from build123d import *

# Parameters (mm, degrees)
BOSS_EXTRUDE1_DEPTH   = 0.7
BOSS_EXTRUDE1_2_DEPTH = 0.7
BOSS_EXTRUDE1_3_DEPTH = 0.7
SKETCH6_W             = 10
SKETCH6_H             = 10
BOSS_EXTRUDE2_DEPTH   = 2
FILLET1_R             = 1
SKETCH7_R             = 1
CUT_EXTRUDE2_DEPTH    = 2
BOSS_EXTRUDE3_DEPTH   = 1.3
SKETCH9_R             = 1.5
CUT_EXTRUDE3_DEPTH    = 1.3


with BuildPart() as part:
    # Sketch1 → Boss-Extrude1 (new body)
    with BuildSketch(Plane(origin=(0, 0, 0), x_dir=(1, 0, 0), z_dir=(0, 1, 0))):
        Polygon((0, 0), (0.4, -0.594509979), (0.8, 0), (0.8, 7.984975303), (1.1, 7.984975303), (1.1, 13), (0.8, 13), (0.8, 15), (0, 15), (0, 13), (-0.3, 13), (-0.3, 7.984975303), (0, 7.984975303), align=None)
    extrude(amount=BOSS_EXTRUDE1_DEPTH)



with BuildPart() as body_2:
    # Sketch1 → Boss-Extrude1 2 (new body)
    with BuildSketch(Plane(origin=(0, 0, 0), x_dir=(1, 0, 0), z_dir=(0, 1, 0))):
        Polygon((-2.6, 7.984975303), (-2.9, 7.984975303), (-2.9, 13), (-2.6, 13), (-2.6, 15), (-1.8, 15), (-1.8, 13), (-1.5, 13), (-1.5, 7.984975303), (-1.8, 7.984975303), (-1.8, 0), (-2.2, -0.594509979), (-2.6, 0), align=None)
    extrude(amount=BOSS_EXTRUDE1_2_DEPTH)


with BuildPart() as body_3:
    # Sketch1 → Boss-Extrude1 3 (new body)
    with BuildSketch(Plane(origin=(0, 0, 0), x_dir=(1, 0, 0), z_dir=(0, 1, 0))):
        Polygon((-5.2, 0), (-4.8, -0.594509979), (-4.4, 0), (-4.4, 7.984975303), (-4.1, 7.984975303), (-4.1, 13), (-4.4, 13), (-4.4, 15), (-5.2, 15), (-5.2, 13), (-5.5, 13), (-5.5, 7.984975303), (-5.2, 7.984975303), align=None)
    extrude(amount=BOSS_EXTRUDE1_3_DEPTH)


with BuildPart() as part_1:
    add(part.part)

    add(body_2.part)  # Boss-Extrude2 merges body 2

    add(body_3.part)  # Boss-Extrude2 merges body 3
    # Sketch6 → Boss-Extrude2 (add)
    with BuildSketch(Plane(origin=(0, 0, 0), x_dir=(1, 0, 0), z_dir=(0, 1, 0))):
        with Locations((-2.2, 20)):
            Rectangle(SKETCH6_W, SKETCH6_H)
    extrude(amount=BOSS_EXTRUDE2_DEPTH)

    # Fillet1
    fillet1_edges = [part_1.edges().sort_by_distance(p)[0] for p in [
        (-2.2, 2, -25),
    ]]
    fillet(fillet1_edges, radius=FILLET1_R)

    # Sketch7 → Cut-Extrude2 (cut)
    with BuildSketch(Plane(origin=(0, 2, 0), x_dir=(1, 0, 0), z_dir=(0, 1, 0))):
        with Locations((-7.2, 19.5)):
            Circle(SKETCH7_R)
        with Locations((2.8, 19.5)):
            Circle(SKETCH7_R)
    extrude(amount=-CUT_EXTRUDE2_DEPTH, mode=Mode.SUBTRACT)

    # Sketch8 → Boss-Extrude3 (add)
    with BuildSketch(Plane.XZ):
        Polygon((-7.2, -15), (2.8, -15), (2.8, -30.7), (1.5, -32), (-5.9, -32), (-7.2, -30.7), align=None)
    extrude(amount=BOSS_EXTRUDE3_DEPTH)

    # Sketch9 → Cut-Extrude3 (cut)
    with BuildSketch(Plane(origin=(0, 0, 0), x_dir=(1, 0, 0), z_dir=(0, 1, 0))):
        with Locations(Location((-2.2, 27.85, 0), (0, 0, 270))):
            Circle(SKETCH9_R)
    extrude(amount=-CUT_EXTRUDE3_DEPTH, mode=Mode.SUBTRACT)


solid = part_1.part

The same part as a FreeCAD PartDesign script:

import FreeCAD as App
import Part
import Sketcher
from FreeCAD import Vector


def edges_at(feature, points):
    """Names of the edges that pass closest to the given points."""
    edges = feature.Shape.Edges
    near = lambda p: min(range(len(edges)), key=lambda i: edges[i].distToShape(Part.Vertex(*p))[0])
    return sorted({f"Edge{near(p) + 1}" for p in points})

doc = App.newDocument("Part")
body = doc.addObject("PartDesign::Body", "Body")

# Sketch on XZ plane
sketch1 = doc.addObject("Sketcher::SketchObject", "Sketch")
body.addObject(sketch1)
sketch1.AttachmentSupport = (doc.XZ_Plane, [""])
sketch1.MapMode = "FlatFace"
sketch1.addGeometry(Part.LineSegment(Vector(0, 0, 0), Vector(0.4, 0.59, 0)), False)
sketch1.addGeometry(Part.LineSegment(Vector(0.4, 0.59, 0), Vector(0.8, 0, 0)), False)
sketch1.addGeometry(Part.LineSegment(Vector(0.8, 0, 0), Vector(0.8, -7.98, 0)), False)
sketch1.addGeometry(Part.LineSegment(Vector(0.8, -7.98, 0), Vector(1.1, -7.98, 0)), False)
sketch1.addGeometry(Part.LineSegment(Vector(1.1, -7.98, 0), Vector(1.1, -13, 0)), False)
sketch1.addGeometry(Part.LineSegment(Vector(1.1, -13, 0), Vector(0.8, -13, 0)), False)
sketch1.addGeometry(Part.LineSegment(Vector(0.8, -13, 0), Vector(0.8, -15, 0)), False)
sketch1.addGeometry(Part.LineSegment(Vector(0.8, -15, 0), Vector(0, -15, 0)), False)
sketch1.addGeometry(Part.LineSegment(Vector(0, -15, 0), Vector(0, -13, 0)), False)
sketch1.addGeometry(Part.LineSegment(Vector(0, -13, 0), Vector(-0.3, -13, 0)), False)
sketch1.addGeometry(Part.LineSegment(Vector(-0.3, -13, 0), Vector(-0.3, -7.98, 0)), False)
sketch1.addGeometry(Part.LineSegment(Vector(-0.3, -7.98, 0), Vector(0, -7.98, 0)), False)
sketch1.addGeometry(Part.LineSegment(Vector(0, -7.98, 0), Vector(0, 0, 0)), False)
sketch1.addConstraint(Sketcher.Constraint("Coincident", 0, 2, 1, 1))
sketch1.addConstraint(Sketcher.Constraint("Coincident", 1, 2, 2, 1))
sketch1.addConstraint(Sketcher.Constraint("Coincident", 2, 2, 3, 1))
sketch1.addConstraint(Sketcher.Constraint("Coincident", 3, 2, 4, 1))
sketch1.addConstraint(Sketcher.Constraint("Coincident", 4, 2, 5, 1))
sketch1.addConstraint(Sketcher.Constraint("Coincident", 5, 2, 6, 1))
sketch1.addConstraint(Sketcher.Constraint("Coincident", 6, 2, 7, 1))
sketch1.addConstraint(Sketcher.Constraint("Coincident", 7, 2, 8, 1))
sketch1.addConstraint(Sketcher.Constraint("Coincident", 8, 2, 9, 1))
sketch1.addConstraint(Sketcher.Constraint("Coincident", 9, 2, 10, 1))
sketch1.addConstraint(Sketcher.Constraint("Coincident", 10, 2, 11, 1))
sketch1.addConstraint(Sketcher.Constraint("Coincident", 11, 2, 12, 1))
sketch1.addConstraint(Sketcher.Constraint("Coincident", 12, 2, 0, 1))
sketch1.addConstraint(Sketcher.Constraint("Vertical", 2))
sketch1.addConstraint(Sketcher.Constraint("Horizontal", 3))
sketch1.addConstraint(Sketcher.Constraint("Vertical", 4))
sketch1.addConstraint(Sketcher.Constraint("Horizontal", 5))
sketch1.addConstraint(Sketcher.Constraint("Vertical", 6))
sketch1.addConstraint(Sketcher.Constraint("Horizontal", 7))
sketch1.addConstraint(Sketcher.Constraint("Vertical", 8))
sketch1.addConstraint(Sketcher.Constraint("Horizontal", 9))
sketch1.addConstraint(Sketcher.Constraint("Vertical", 10))
sketch1.addConstraint(Sketcher.Constraint("Horizontal", 11))
sketch1.addConstraint(Sketcher.Constraint("Vertical", 12))
sketch1.addConstraint(Sketcher.Constraint("Coincident", 12, 2, -1, 1))
sketch1.addConstraint(Sketcher.Constraint("PointOnObject", 1, 2, -1))
sketch1.addConstraint(Sketcher.Constraint("PointOnObject", 7, 2, -2))
sketch1.addConstraint(Sketcher.Constraint("Horizontal", 5, 2, 8, 2))
sketch1.addConstraint(Sketcher.Constraint("Horizontal", 3, 2, 10, 2))
sketch1.addConstraint(Sketcher.Constraint("Vertical", 2, 2, 5, 2))
sketch1.addConstraint(Sketcher.Constraint("Equal", 5, 9))
sketch1.addConstraint(Sketcher.Constraint("Equal", 0, 1))
sketch1.addConstraint(Sketcher.Constraint("DistanceY", 6, 2, 6, 1, 2.0))
sketch1.addConstraint(Sketcher.Constraint("DistanceX", 3, 1, 3, 2, 0.3))
sketch1.addConstraint(Sketcher.Constraint("DistanceX", 7, 2, 7, 1, 0.8))
sketch1.addConstraint(Sketcher.Constraint("DistanceY", 4, 2, -1, 1, 13.0))
sketch1.addConstraint(Sketcher.Constraint("Distance", 0, 0.716549))
sketch1.addConstraint(Sketcher.Constraint("DistanceY", 2, 2, 2, 1, 7.984975))
pad1 = doc.addObject("PartDesign::Pad", "Pad")
body.addObject(pad1)
pad1.Profile = sketch1
pad1.Length = 0.7
pad1.Reversed = True
body2 = doc.addObject("PartDesign::Body", "Body001")

# Sketch on XZ plane
sketch2 = doc.addObject("Sketcher::SketchObject", "Sketch001")
body2.addObject(sketch2)
sketch2.AttachmentSupport = (doc.getObject("XZ_Plane001"), [""])
sketch2.MapMode = "FlatFace"
sketch2.addGeometry(Part.LineSegment(Vector(-2.9, -7.98, 0), Vector(-2.6, -7.98, 0)), False)
sketch2.addGeometry(Part.LineSegment(Vector(-2.6, -7.98, 0), Vector(-2.6, 0, 0)), False)
sketch2.addGeometry(Part.LineSegment(Vector(-2.6, 0, 0), Vector(-2.2, 0.59, 0)), False)
sketch2.addGeometry(Part.LineSegment(Vector(-2.2, 0.59, 0), Vector(-1.8, 0, 0)), False)
sketch2.addGeometry(Part.LineSegment(Vector(-1.8, 0, 0), Vector(-1.8, -7.98, 0)), False)
sketch2.addGeometry(Part.LineSegment(Vector(-1.8, -7.98, 0), Vector(-1.5, -7.98, 0)), False)
sketch2.addGeometry(Part.LineSegment(Vector(-1.5, -7.98, 0), Vector(-1.5, -13, 0)), False)
sketch2.addGeometry(Part.LineSegment(Vector(-1.5, -13, 0), Vector(-1.8, -13, 0)), False)
sketch2.addGeometry(Part.LineSegment(Vector(-1.8, -13, 0), Vector(-1.8, -15, 0)), False)
sketch2.addGeometry(Part.LineSegment(Vector(-1.8, -15, 0), Vector(-2.6, -15, 0)), False)
sketch2.addGeometry(Part.LineSegment(Vector(-2.6, -15, 0), Vector(-2.6, -13, 0)), False)
sketch2.addGeometry(Part.LineSegment(Vector(-2.6, -13, 0), Vector(-2.9, -13, 0)), False)
sketch2.addGeometry(Part.LineSegment(Vector(-2.9, -13, 0), Vector(-2.9, -7.98, 0)), False)
sketch2.addConstraint(Sketcher.Constraint("Coincident", 0, 2, 1, 1))
sketch2.addConstraint(Sketcher.Constraint("Coincident", 1, 2, 2, 1))
sketch2.addConstraint(Sketcher.Constraint("Coincident", 2, 2, 3, 1))
sketch2.addConstraint(Sketcher.Constraint("Coincident", 3, 2, 4, 1))
sketch2.addConstraint(Sketcher.Constraint("Coincident", 4, 2, 5, 1))
sketch2.addConstraint(Sketcher.Constraint("Coincident", 5, 2, 6, 1))
sketch2.addConstraint(Sketcher.Constraint("Coincident", 6, 2, 7, 1))
sketch2.addConstraint(Sketcher.Constraint("Coincident", 7, 2, 8, 1))
sketch2.addConstraint(Sketcher.Constraint("Coincident", 8, 2, 9, 1))
sketch2.addConstraint(Sketcher.Constraint("Coincident", 9, 2, 10, 1))
sketch2.addConstraint(Sketcher.Constraint("Coincident", 10, 2, 11, 1))
sketch2.addConstraint(Sketcher.Constraint("Coincident", 11, 2, 12, 1))
sketch2.addConstraint(Sketcher.Constraint("Coincident", 12, 2, 0, 1))
sketch2.addConstraint(Sketcher.Constraint("Horizontal", 0))
sketch2.addConstraint(Sketcher.Constraint("Vertical", 1))
sketch2.addConstraint(Sketcher.Constraint("Vertical", 4))
sketch2.addConstraint(Sketcher.Constraint("Horizontal", 5))
sketch2.addConstraint(Sketcher.Constraint("Vertical", 6))
sketch2.addConstraint(Sketcher.Constraint("Horizontal", 7))
sketch2.addConstraint(Sketcher.Constraint("Vertical", 8))
sketch2.addConstraint(Sketcher.Constraint("Horizontal", 9))
sketch2.addConstraint(Sketcher.Constraint("Vertical", 10))
sketch2.addConstraint(Sketcher.Constraint("Horizontal", 11))
sketch2.addConstraint(Sketcher.Constraint("Vertical", 12))
sketch2.addConstraint(Sketcher.Constraint("PointOnObject", 1, 2, -1))
sketch2.addConstraint(Sketcher.Constraint("PointOnObject", 3, 2, -1))
sketch2.addConstraint(Sketcher.Constraint("Horizontal", 0, 2, 4, 2))
sketch2.addConstraint(Sketcher.Constraint("Horizontal", 7, 2, 10, 2))
sketch2.addConstraint(Sketcher.Constraint("Vertical", 4, 2, 7, 2))
sketch2.addConstraint(Sketcher.Constraint("Vertical", 1, 2, 9, 2))
sketch2.addConstraint(Sketcher.Constraint("Equal", 0, 5))
sketch2.addConstraint(Sketcher.Constraint("Equal", 2, 3))
sketch2.addConstraint(Sketcher.Constraint("DistanceY", 8, 2, 8, 1, 2.0))
sketch2.addConstraint(Sketcher.Constraint("DistanceX", 0, 1, 0, 2, 0.3))
sketch2.addConstraint(Sketcher.Constraint("DistanceX", 9, 2, 9, 1, 0.8))
sketch2.addConstraint(Sketcher.Constraint("DistanceY", 6, 2, -1, 1, 13.0))
sketch2.addConstraint(Sketcher.Constraint("DistanceX", 0, 2, -1, 1, 2.6))
sketch2.addConstraint(Sketcher.Constraint("Distance", 2, 0.716549))
sketch2.addConstraint(Sketcher.Constraint("DistanceY", 1, 1, 1, 2, 7.984975))
pad2 = doc.addObject("PartDesign::Pad", "Pad001")
body2.addObject(pad2)
pad2.Profile = sketch2
pad2.Length = 0.7
pad2.Reversed = True
body3 = doc.addObject("PartDesign::Body", "Body002")

# Sketch on XZ plane
sketch3 = doc.addObject("Sketcher::SketchObject", "Sketch002")
body3.addObject(sketch3)
sketch3.AttachmentSupport = (doc.getObject("XZ_Plane002"), [""])
sketch3.MapMode = "FlatFace"
sketch3.addGeometry(Part.LineSegment(Vector(-5.2, 0, 0), Vector(-4.8, 0.59, 0)), False)
sketch3.addGeometry(Part.LineSegment(Vector(-4.8, 0.59, 0), Vector(-4.4, 0, 0)), False)
sketch3.addGeometry(Part.LineSegment(Vector(-4.4, 0, 0), Vector(-4.4, -7.98, 0)), False)
sketch3.addGeometry(Part.LineSegment(Vector(-4.4, -7.98, 0), Vector(-4.1, -7.98, 0)), False)
sketch3.addGeometry(Part.LineSegment(Vector(-4.1, -7.98, 0), Vector(-4.1, -13, 0)), False)
sketch3.addGeometry(Part.LineSegment(Vector(-4.1, -13, 0), Vector(-4.4, -13, 0)), False)
sketch3.addGeometry(Part.LineSegment(Vector(-4.4, -13, 0), Vector(-4.4, -15, 0)), False)
sketch3.addGeometry(Part.LineSegment(Vector(-4.4, -15, 0), Vector(-5.2, -15, 0)), False)
sketch3.addGeometry(Part.LineSegment(Vector(-5.2, -15, 0), Vector(-5.2, -13, 0)), False)
sketch3.addGeometry(Part.LineSegment(Vector(-5.2, -13, 0), Vector(-5.5, -13, 0)), False)
sketch3.addGeometry(Part.LineSegment(Vector(-5.5, -13, 0), Vector(-5.5, -7.98, 0)), False)
sketch3.addGeometry(Part.LineSegment(Vector(-5.5, -7.98, 0), Vector(-5.2, -7.98, 0)), False)
sketch3.addGeometry(Part.LineSegment(Vector(-5.2, -7.98, 0), Vector(-5.2, 0, 0)), False)
sketch3.addConstraint(Sketcher.Constraint("Coincident", 0, 2, 1, 1))
sketch3.addConstraint(Sketcher.Constraint("Coincident", 1, 2, 2, 1))
sketch3.addConstraint(Sketcher.Constraint("Coincident", 2, 2, 3, 1))
sketch3.addConstraint(Sketcher.Constraint("Coincident", 3, 2, 4, 1))
sketch3.addConstraint(Sketcher.Constraint("Coincident", 4, 2, 5, 1))
sketch3.addConstraint(Sketcher.Constraint("Coincident", 5, 2, 6, 1))
sketch3.addConstraint(Sketcher.Constraint("Coincident", 6, 2, 7, 1))
sketch3.addConstraint(Sketcher.Constraint("Coincident", 7, 2, 8, 1))
sketch3.addConstraint(Sketcher.Constraint("Coincident", 8, 2, 9, 1))
sketch3.addConstraint(Sketcher.Constraint("Coincident", 9, 2, 10, 1))
sketch3.addConstraint(Sketcher.Constraint("Coincident", 10, 2, 11, 1))
sketch3.addConstraint(Sketcher.Constraint("Coincident", 11, 2, 12, 1))
sketch3.addConstraint(Sketcher.Constraint("Coincident", 12, 2, 0, 1))
sketch3.addConstraint(Sketcher.Constraint("Vertical", 2))
sketch3.addConstraint(Sketcher.Constraint("Horizontal", 3))
sketch3.addConstraint(Sketcher.Constraint("Vertical", 4))
sketch3.addConstraint(Sketcher.Constraint("Horizontal", 5))
sketch3.addConstraint(Sketcher.Constraint("Vertical", 6))
sketch3.addConstraint(Sketcher.Constraint("Horizontal", 7))
sketch3.addConstraint(Sketcher.Constraint("Vertical", 8))
sketch3.addConstraint(Sketcher.Constraint("Horizontal", 9))
sketch3.addConstraint(Sketcher.Constraint("Vertical", 10))
sketch3.addConstraint(Sketcher.Constraint("Horizontal", 11))
sketch3.addConstraint(Sketcher.Constraint("Vertical", 12))
sketch3.addConstraint(Sketcher.Constraint("PointOnObject", 1, 2, -1))
sketch3.addConstraint(Sketcher.Constraint("PointOnObject", 12, 2, -1))
sketch3.addConstraint(Sketcher.Constraint("Horizontal", 5, 2, 8, 2))
sketch3.addConstraint(Sketcher.Constraint("Horizontal", 3, 2, 10, 2))
sketch3.addConstraint(Sketcher.Constraint("Vertical", 2, 2, 5, 2))
sketch3.addConstraint(Sketcher.Constraint("Vertical", 8, 2, 11, 2))
sketch3.addConstraint(Sketcher.Constraint("Equal", 5, 9))
sketch3.addConstraint(Sketcher.Constraint("Equal", 0, 1))
sketch3.addConstraint(Sketcher.Constraint("DistanceY", 6, 2, 6, 1, 2.0))
sketch3.addConstraint(Sketcher.Constraint("DistanceX", 3, 1, 3, 2, 0.3))
sketch3.addConstraint(Sketcher.Constraint("DistanceX", 7, 2, 7, 1, 0.8))
sketch3.addConstraint(Sketcher.Constraint("DistanceY", 4, 2, -1, 1, 13.0))
sketch3.addConstraint(Sketcher.Constraint("DistanceX", 0, 2, -1, 1, 4.8))
sketch3.addConstraint(Sketcher.Constraint("Distance", 0, 0.716549))
sketch3.addConstraint(Sketcher.Constraint("DistanceY", 2, 2, 2, 1, 7.984975))
pad3 = doc.addObject("PartDesign::Pad", "Pad002")
body3.addObject(pad3)
pad3.Profile = sketch3
pad3.Length = 0.7
pad3.Reversed = True
body.AllowCompound = True
doc.recompute()

boolean = doc.addObject("PartDesign::Boolean", "Boolean")
body.addObject(boolean)
boolean.Type = "Fuse"
boolean.addObjects([body2])
doc.recompute()

boolean2 = doc.addObject("PartDesign::Boolean", "Boolean001")
body.addObject(boolean2)
boolean2.Type = "Fuse"
boolean2.addObjects([body3])

# Sketch on XZ plane
sketch4 = doc.addObject("Sketcher::SketchObject", "Sketch003")
body.addObject(sketch4)
sketch4.AttachmentSupport = (doc.XZ_Plane, [""])
sketch4.MapMode = "FlatFace"
sketch4.addGeometry(Part.LineSegment(Vector(-7, -25, 0), Vector(-7, -15, 0)), False)
sketch4.addGeometry(Part.LineSegment(Vector(-7, -15, 0), Vector(3, -15, 0)), False)
sketch4.addGeometry(Part.LineSegment(Vector(3, -15, 0), Vector(3, -25, 0)), False)
sketch4.addGeometry(Part.LineSegment(Vector(3, -25, 0), Vector(-7, -25, 0)), False)
sketch4.addConstraint(Sketcher.Constraint("Coincident", 0, 2, 1, 1))
sketch4.addConstraint(Sketcher.Constraint("Coincident", 1, 2, 2, 1))
sketch4.addConstraint(Sketcher.Constraint("Coincident", 2, 2, 3, 1))
sketch4.addConstraint(Sketcher.Constraint("Coincident", 3, 2, 0, 1))
sketch4.addConstraint(Sketcher.Constraint("Vertical", 0))
sketch4.addConstraint(Sketcher.Constraint("Horizontal", 1))
sketch4.addConstraint(Sketcher.Constraint("Vertical", 2))
sketch4.addConstraint(Sketcher.Constraint("Horizontal", 3))
sketch4.addConstraint(Sketcher.Constraint("Equal", 3, 0))
sketch4.addConstraint(Sketcher.Constraint("DistanceX", 1, 1, 1, 2, 10.0))
sketch4.addConstraint(Sketcher.Constraint("DistanceY", 0, 2, -1, 1, 15.0))
sketch4.addConstraint(Sketcher.Constraint("DistanceX", 0, 2, -1, 1, 7.2))
pad4 = doc.addObject("PartDesign::Pad", "Pad003")
body.addObject(pad4)
pad4.Profile = sketch4
pad4.Length = 2
pad4.Reversed = True
doc.recompute()

fillet = doc.addObject("PartDesign::Fillet", "Fillet")
body.addObject(fillet)
fillet.Base = (pad4, edges_at(pad4, [(-2.2, 2, -25)]))
fillet.Radius = 1

# Sketch on XZ plane
sketch5 = doc.addObject("Sketcher::SketchObject", "Sketch004")
body.addObject(sketch5)
sketch5.AttachmentSupport = (doc.XZ_Plane, [""])
sketch5.MapMode = "FlatFace"
sketch5.AttachmentOffset = App.Placement(Vector(0, 0, -2), App.Rotation())
sketch5.addGeometry(Part.Circle(Vector(-7.2, -19.5, 0), Vector(0, 0, 1), 1), False)
sketch5.addGeometry(Part.Circle(Vector(2.8, -19.5, 0), Vector(0, 0, 1), 1), False)
sketch5.addConstraint(Sketcher.Constraint("Equal", 0, 1))
sketch5.addConstraint(Sketcher.Constraint("Horizontal", 0, 3, 1, 3))
sketch5.addConstraint(Sketcher.Constraint("Diameter", 0, 2.0))
sketch5.addConstraint(Sketcher.Constraint("DistanceX", 0, 3, 1, 3, 10.0))
sketch5.addConstraint(Sketcher.Constraint("DistanceX", 0, 3, -1, 1, 7.2))
sketch5.addConstraint(Sketcher.Constraint("DistanceY", 0, 3, -1, 1, 19.5))
pocket1 = doc.addObject("PartDesign::Pocket", "Pocket")
body.addObject(pocket1)
pocket1.Profile = sketch5
pocket1.Length = 2
pocket1.Reversed = True

# Sketch on XZ plane
sketch6 = doc.addObject("Sketcher::SketchObject", "Sketch005")
body.addObject(sketch6)
sketch6.AttachmentSupport = (doc.XZ_Plane, [""])
sketch6.MapMode = "FlatFace"
sketch6.addGeometry(Part.LineSegment(Vector(2.8, -15, 0), Vector(-7.2, -15, 0)), False)
sketch6.addGeometry(Part.LineSegment(Vector(-7.2, -15, 0), Vector(-7.2, -30.7, 0)), False)
sketch6.addGeometry(Part.LineSegment(Vector(-7.2, -30.7, 0), Vector(-5.9, -32, 0)), False)
sketch6.addGeometry(Part.LineSegment(Vector(-5.9, -32, 0), Vector(1.5, -32, 0)), False)
sketch6.addGeometry(Part.LineSegment(Vector(1.5, -32, 0), Vector(2.8, -30.7, 0)), False)
sketch6.addGeometry(Part.LineSegment(Vector(2.8, -30.7, 0), Vector(2.8, -15, 0)), False)
sketch6.addConstraint(Sketcher.Constraint("Coincident", 0, 2, 1, 1))
sketch6.addConstraint(Sketcher.Constraint("Coincident", 1, 2, 2, 1))
sketch6.addConstraint(Sketcher.Constraint("Coincident", 2, 2, 3, 1))
sketch6.addConstraint(Sketcher.Constraint("Coincident", 3, 2, 4, 1))
sketch6.addConstraint(Sketcher.Constraint("Coincident", 4, 2, 5, 1))
sketch6.addConstraint(Sketcher.Constraint("Coincident", 5, 2, 0, 1))
sketch6.addConstraint(Sketcher.Constraint("Horizontal", 0))
sketch6.addConstraint(Sketcher.Constraint("Vertical", 1))
sketch6.addConstraint(Sketcher.Constraint("Horizontal", 3))
sketch6.addConstraint(Sketcher.Constraint("Vertical", 5))
sketch6.addConstraint(Sketcher.Constraint("Perpendicular", 2, 4))
sketch6.addConstraint(Sketcher.Constraint("Horizontal", 1, 2, 4, 2))
sketch6.addConstraint(Sketcher.Constraint("Equal", 2, 4))
sketch6.addConstraint(Sketcher.Constraint("DistanceX", 0, 2, 0, 1, 10.0))
sketch6.addConstraint(Sketcher.Constraint("DistanceX", 3, 1, 3, 2, 7.4))
sketch6.addConstraint(Sketcher.Constraint("DistanceY", 1, 2, 1, 1, 15.7))
sketch6.addConstraint(Sketcher.Constraint("DistanceY", 0, 2, -1, 1, 15.0))
sketch6.addConstraint(Sketcher.Constraint("DistanceX", 0, 2, -1, 1, 7.2))
pad5 = doc.addObject("PartDesign::Pad", "Pad004")
body.addObject(pad5)
pad5.Profile = sketch6
pad5.Length = 1.3

# Sketch on XZ plane
sketch7 = doc.addObject("Sketcher::SketchObject", "Sketch006")
body.addObject(sketch7)
sketch7.AttachmentSupport = (doc.XZ_Plane, [""])
sketch7.MapMode = "FlatFace"
sketch7.addGeometry(Part.Circle(Vector(-2.2, -27.9, 0), Vector(0, 0, 1), 1.5), False)
sketch7.addConstraint(Sketcher.Constraint("Diameter", 0, 3.0))
sketch7.addConstraint(Sketcher.Constraint("DistanceX", 0, 3, -1, 1, 2.2))
sketch7.addConstraint(Sketcher.Constraint("DistanceY", 0, 3, -1, 1, 27.85))
pocket2 = doc.addObject("PartDesign::Pocket", "Pocket001")
body.addObject(pocket2)
pocket2.Profile = sketch7
pocket2.Length = 1.3
pocket2.Reversed = True

doc.recompute()
